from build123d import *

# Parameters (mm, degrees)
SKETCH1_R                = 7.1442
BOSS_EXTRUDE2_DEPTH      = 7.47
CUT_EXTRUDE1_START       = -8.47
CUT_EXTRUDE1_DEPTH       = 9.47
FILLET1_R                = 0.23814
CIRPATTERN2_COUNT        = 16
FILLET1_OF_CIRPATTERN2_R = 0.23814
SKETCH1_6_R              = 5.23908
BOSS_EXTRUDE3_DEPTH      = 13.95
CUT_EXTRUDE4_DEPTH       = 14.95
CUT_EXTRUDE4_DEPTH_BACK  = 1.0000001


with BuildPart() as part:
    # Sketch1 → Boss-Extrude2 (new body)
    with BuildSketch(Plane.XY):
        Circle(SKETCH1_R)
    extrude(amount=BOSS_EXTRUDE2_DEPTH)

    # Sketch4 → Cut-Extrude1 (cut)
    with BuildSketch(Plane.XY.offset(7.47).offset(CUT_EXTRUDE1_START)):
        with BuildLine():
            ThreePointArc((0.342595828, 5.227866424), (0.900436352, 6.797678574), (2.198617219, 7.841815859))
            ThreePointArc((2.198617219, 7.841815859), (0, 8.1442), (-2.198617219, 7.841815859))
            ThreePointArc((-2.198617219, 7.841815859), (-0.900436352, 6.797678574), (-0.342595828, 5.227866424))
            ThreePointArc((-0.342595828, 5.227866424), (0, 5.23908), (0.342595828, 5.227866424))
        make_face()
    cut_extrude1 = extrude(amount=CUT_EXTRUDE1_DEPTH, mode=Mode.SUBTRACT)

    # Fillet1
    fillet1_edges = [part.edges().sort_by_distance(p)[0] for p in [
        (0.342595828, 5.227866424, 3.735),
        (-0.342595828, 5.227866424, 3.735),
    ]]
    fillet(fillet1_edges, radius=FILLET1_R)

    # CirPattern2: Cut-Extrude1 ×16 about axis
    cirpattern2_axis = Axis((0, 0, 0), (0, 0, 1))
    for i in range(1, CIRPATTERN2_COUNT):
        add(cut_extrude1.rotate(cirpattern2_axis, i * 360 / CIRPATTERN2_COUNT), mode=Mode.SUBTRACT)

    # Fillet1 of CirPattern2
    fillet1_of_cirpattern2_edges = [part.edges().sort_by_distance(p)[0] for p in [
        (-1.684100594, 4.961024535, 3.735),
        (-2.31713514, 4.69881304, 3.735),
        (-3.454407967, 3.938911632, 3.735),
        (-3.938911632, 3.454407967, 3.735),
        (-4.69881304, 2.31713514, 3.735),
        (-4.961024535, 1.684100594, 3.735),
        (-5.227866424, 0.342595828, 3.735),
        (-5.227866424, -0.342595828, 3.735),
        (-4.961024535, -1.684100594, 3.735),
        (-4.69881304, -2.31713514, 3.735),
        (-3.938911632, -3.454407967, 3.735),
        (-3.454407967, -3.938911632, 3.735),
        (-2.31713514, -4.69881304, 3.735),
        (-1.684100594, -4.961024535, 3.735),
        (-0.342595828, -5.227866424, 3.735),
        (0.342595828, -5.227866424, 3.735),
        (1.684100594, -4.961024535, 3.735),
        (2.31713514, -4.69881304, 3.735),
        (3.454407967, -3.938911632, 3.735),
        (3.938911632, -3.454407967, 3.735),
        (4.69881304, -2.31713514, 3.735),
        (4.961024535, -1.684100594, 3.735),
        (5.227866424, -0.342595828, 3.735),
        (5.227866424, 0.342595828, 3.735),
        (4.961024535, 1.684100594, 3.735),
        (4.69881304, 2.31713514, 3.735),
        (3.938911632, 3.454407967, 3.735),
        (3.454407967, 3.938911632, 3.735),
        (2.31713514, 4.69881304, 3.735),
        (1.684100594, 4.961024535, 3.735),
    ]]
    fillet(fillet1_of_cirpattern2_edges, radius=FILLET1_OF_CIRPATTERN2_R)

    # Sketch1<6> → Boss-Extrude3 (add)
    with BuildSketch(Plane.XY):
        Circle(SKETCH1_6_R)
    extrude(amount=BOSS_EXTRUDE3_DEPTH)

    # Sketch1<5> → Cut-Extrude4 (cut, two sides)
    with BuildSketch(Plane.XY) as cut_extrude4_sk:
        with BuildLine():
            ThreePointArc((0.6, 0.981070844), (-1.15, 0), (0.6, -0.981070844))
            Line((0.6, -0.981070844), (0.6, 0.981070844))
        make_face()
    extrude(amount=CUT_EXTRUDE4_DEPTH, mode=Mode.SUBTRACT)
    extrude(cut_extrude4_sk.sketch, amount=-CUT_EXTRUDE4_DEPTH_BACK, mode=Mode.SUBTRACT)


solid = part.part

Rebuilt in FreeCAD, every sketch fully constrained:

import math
import FreeCAD as App
import Part
import Sketcher


def edges_at(feature, points):
    """Names of the edges that pass closest to the given points."""
    edges = feature.Shape.Edges
    near = lambda p: min(range(len(edges)), key=lambda i: edges[i].distToShape(Part.Vertex(*p))[0])
    return sorted({f"Edge{near(p) + 1}" for p in points})

doc = App.newDocument("Part")
body = doc.addObject("PartDesign::Body", "Body")

sketch1 = body.newObject("Sketcher::SketchObject", "Sketch")
sketch1.AttachmentSupport = (doc.getObject("XY_Plane"), [""])
sketch1.MapMode = "FlatFace"
sketch1.addGeometry(Part.Circle(App.Vector(0, 0, 0), App.Vector(0, 0, 1), 7), False)
sketch1.addConstraint(Sketcher.Constraint("Coincident", 0, 3, -1, 1))
sketch1.addConstraint(Sketcher.Constraint("Diameter", 0, 14.2884))
pad1 = body.newObject("PartDesign::Pad", "Pad")
pad1.Profile = sketch1
pad1.Length = 7.47

sketch2 = body.newObject("Sketcher::SketchObject", "Sketch001")
sketch2.AttachmentSupport = (doc.getObject("XY_Plane"), [""])
sketch2.MapMode = "FlatFace"
sketch2.AttachmentOffset = App.Placement(App.Vector(0, 0, -1), App.Rotation())
sketch2.addGeometry(Part.ArcOfCircle(Part.Circle(App.Vector(3.4, 5, 0), App.Vector(0, 0, 1), 3.1), math.radians(113), math.radians(176)), False)
sketch2.addGeometry(Part.ArcOfCircle(Part.Circle(App.Vector(0, 0, 0), App.Vector(0, 0, 1), 8.1), math.radians(74), math.radians(106)), False)
sketch2.addGeometry(Part.ArcOfCircle(Part.Circle(App.Vector(-3.4, 5, 0), App.Vector(0, 0, 1), 3.1), math.radians(4), math.radians(67)), False)
sketch2.addGeometry(Part.ArcOfCircle(Part.Circle(App.Vector(0, 0, 0), App.Vector(0, 0, 1), 5.2), math.radians(86.25), math.radians(93.75)), False)
sketch2.addConstraint(Sketcher.Constraint("Coincident", 0, 1, 1, 1))
sketch2.addConstraint(Sketcher.Constraint("Coincident", 1, 2, 2, 2))
sketch2.addConstraint(Sketcher.Constraint("Coincident", 2, 1, 3, 2))
sketch2.addConstraint(Sketcher.Constraint("Coincident", 3, 1, 0, 2))
sketch2.addConstraint(Sketcher.Constraint("Coincident", 1, 3, -1, 1))
sketch2.addConstraint(Sketcher.Constraint("Coincident", 3, 3, -1, 1))
sketch2.addConstraint(Sketcher.Constraint("Equal", 0, 2))
sketch2.addConstraint(Sketcher.Constraint("Symmetric", 0, 3, 2, 3, -2))
sketch2.addConstraint(Sketcher.Constraint("Radius", 1, 8.1442))
sketch2.addConstraint(Sketcher.Constraint("Radius", 3, 5.23908))
sketch2.addConstraint(Sketcher.Constraint("Radius", 0, 3.056762))
sketch2.addConstraint(Sketcher.Constraint("DistanceX", 0, 1, 0, 3, 1.194198))
sketch2.addConstraint(Sketcher.Constraint("DistanceX", 2, 3, 0, 3, 6.785631))
pocket1 = body.newObject("PartDesign::Pocket", "Pocket")
pocket1.Profile = sketch2
pocket1.Length = 9.47
pocket1.Reversed = True
doc.recompute()

fillet = body.newObject("PartDesign::Fillet", "Fillet")
fillet.Base = (pocket1, edges_at(pocket1, [(0.343, 5.228, 3.735), (-0.343, 5.228, 3.735)]))
fillet.Radius = 0.23814
doc.recompute()

polarpattern = body.newObject("PartDesign::PolarPattern", "PolarPattern")
polarpattern.Originals = [pocket1]
polarpattern.Axis = (doc.getObject("Z_Axis"), [""])
polarpattern.Angle = 360
polarpattern.Occurrences = 16
body.Tip = polarpattern
doc.recompute()

fillet2 = body.newObject("PartDesign::Fillet", "Fillet001")
fillet2.Base = (polarpattern, edges_at(polarpattern, [
    (-1.684, 4.961, 3.735),
    (-2.317, 4.699, 3.735),
    (-3.454, 3.939, 3.735),
    (-3.939, 3.454, 3.735),
    (-4.699, 2.317, 3.735),
    (-4.961, 1.684, 3.735),
    (-5.228, 0.343, 3.735),
    (-5.228, -0.343, 3.735),
    (-4.961, -1.684, 3.735),
    (-4.699, -2.317, 3.735),
    (-3.939, -3.454, 3.735),
    (-3.454, -3.939, 3.735),
    (-2.317, -4.699, 3.735),
    (-1.684, -4.961, 3.735),
    (-0.343, -5.228, 3.735),
    (0.343, -5.228, 3.735),
    (1.684, -4.961, 3.735),
    (2.317, -4.699, 3.735),
    (3.454, -3.939, 3.735),
    (3.939, -3.454, 3.735),
    (4.699, -2.317, 3.735),
    (4.961, -1.684, 3.735),
    (5.228, -0.343, 3.735),
    (5.228, 0.343, 3.735),
    (4.961, 1.684, 3.735),
    (4.699, 2.317, 3.735),
    (3.939, 3.454, 3.735),
    (3.454, 3.939, 3.735),
    (2.317, 4.699, 3.735),
    (1.684, 4.961, 3.735),
]))
fillet2.Radius = 0.23814

sketch3 = body.newObject("Sketcher::SketchObject", "Sketch002")
sketch3.AttachmentSupport = (doc.getObject("XY_Plane"), [""])
sketch3.MapMode = "FlatFace"
sketch3.addGeometry(Part.Circle(App.Vector(0, 0, 0), App.Vector(0, 0, 1), 5), False)
sketch3.addConstraint(Sketcher.Constraint("Coincident", 0, 3, -1, 1))
sketch3.addConstraint(Sketcher.Constraint("Diameter", 0, 10.47816))
pad2 = body.newObject("PartDesign::Pad", "Pad001")
pad2.Profile = sketch3
pad2.Length = 13.95

sketch4 = body.newObject("Sketcher::SketchObject", "Sketch003")
sketch4.AttachmentSupport = (doc.getObject("XY_Plane"), [""])
sketch4.MapMode = "FlatFace"
sketch4.addGeometry(Part.ArcOfCircle(Part.Circle(App.Vector(0, 0, 0), App.Vector(0, 0, 1), 1.1), math.radians(59), math.radians(301)), False)
sketch4.addGeometry(Part.LineSegment(App.Vector(0.6, -1, 0), App.Vector(0.6, 1, 0)), False)
sketch4.addConstraint(Sketcher.Constraint("Coincident", 0, 1, 1, 2))
sketch4.addConstraint(Sketcher.Constraint("Coincident", 1, 1, 0, 2))
sketch4.addConstraint(Sketcher.Constraint("Vertical", 1))
sketch4.addConstraint(Sketcher.Constraint("Coincident", 0, 3, -1, 1))
sketch4.addConstraint(Sketcher.Constraint("Radius", 0, 1.15))
sketch4.addConstraint(Sketcher.Constraint("DistanceX", -1, 1, 0, 1, 0.6))
pocket2 = body.newObject("PartDesign::Pocket", "Pocket001")
pocket2.Profile = sketch4
pocket2.Type = "ThroughAll"
pocket2.Midplane = True

doc.recompute()
